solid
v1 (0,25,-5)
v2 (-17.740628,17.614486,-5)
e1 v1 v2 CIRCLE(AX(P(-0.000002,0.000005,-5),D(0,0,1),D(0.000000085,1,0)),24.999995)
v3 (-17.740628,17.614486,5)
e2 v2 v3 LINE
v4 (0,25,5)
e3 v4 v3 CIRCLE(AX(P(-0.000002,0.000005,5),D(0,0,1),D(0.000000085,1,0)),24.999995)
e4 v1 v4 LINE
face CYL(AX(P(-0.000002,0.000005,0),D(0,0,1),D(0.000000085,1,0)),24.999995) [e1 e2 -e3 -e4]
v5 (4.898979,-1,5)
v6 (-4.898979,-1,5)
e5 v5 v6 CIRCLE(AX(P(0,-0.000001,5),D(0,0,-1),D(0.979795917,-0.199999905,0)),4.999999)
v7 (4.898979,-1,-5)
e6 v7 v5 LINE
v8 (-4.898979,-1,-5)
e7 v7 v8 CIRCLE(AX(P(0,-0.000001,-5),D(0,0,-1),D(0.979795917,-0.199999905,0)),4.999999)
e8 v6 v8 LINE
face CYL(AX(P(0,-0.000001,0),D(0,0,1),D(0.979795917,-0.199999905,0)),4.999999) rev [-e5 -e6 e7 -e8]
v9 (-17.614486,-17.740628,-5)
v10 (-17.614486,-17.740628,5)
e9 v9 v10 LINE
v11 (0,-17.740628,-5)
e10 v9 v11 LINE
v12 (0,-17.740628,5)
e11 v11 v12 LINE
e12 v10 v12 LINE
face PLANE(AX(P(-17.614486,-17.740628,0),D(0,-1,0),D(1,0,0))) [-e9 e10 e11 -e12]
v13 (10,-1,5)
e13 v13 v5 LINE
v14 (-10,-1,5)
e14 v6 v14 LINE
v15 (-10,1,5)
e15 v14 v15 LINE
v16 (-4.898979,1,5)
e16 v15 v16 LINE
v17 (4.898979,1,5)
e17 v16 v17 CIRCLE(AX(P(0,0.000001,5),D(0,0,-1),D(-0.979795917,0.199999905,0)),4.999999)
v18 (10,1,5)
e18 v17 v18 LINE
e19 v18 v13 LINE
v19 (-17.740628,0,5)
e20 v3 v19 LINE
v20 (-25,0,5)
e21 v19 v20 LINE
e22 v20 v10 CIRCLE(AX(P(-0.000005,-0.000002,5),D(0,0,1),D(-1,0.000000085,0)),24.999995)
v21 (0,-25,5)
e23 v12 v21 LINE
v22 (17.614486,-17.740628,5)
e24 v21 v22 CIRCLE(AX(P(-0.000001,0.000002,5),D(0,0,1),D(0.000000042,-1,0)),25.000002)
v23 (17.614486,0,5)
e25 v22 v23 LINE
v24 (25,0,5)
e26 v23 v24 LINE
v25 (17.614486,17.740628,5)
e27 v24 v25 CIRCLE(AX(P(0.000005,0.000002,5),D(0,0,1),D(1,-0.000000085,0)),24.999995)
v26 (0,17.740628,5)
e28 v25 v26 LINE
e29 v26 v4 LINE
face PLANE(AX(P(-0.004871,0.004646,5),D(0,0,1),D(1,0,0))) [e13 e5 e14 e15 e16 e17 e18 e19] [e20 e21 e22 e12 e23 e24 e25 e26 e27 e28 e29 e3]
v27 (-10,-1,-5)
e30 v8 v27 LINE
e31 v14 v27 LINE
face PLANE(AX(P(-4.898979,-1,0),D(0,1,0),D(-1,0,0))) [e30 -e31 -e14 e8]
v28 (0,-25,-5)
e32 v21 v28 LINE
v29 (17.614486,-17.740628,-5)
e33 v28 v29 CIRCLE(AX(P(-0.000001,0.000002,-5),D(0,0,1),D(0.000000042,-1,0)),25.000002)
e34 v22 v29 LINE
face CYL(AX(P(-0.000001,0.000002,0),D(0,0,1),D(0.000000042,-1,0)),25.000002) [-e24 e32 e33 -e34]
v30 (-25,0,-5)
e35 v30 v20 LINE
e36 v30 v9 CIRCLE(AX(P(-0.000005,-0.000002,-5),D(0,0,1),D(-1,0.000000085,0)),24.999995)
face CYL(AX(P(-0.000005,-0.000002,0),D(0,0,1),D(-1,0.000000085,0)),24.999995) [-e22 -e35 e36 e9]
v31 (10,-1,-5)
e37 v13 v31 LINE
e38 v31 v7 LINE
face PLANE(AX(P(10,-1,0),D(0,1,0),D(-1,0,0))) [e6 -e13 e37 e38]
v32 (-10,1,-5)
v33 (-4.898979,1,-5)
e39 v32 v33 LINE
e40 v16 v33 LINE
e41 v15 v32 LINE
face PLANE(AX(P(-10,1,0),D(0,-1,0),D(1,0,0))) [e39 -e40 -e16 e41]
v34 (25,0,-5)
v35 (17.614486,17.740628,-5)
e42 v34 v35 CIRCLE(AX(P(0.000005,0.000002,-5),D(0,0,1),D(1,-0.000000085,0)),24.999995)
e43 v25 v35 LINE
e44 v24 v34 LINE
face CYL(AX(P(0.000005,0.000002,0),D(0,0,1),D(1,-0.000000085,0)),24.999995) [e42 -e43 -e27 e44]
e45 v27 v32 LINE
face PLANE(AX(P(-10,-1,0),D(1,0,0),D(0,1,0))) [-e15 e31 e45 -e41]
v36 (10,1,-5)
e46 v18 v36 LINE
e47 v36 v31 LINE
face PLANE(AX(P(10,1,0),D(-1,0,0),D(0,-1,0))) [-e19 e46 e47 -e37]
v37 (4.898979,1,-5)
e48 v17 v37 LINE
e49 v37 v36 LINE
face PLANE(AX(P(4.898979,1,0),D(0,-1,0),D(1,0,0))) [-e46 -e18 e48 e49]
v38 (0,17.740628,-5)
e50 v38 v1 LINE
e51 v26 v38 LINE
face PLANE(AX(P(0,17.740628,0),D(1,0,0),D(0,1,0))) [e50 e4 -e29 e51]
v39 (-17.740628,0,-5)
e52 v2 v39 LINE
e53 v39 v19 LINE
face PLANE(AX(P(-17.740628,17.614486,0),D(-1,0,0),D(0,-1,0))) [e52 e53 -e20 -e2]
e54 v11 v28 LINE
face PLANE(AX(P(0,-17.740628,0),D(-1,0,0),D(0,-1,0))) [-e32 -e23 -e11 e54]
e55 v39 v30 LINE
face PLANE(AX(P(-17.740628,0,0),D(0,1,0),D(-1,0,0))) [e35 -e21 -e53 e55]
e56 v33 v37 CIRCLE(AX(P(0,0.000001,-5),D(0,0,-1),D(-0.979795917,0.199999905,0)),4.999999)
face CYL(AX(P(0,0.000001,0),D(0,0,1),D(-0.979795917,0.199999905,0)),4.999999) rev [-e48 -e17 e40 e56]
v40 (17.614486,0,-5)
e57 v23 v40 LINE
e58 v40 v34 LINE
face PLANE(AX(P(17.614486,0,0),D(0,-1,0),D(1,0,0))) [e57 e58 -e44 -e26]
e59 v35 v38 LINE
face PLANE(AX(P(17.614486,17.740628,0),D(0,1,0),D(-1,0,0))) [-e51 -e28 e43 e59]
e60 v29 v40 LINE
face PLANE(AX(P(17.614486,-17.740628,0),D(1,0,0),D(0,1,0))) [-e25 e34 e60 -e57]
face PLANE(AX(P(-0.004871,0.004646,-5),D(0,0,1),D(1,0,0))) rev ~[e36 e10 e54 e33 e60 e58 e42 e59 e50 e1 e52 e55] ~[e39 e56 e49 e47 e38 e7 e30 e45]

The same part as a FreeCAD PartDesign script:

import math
import FreeCAD as App
import Part
import Sketcher

V = App.Vector
Q = App.Units.Quantity

doc = App.newDocument("Part")
body = doc.addObject("PartDesign::Body", "Body")

# Sketch on XY plane
sketch1 = doc.addObject("Sketcher::SketchObject", "Sketch")
body.addObject(sketch1)
sketch1.AttachmentSupport = (doc.XY_Plane, [""])
sketch1.MapMode = "FlatFace"
sketch1.addGeometry([
    Part.LineSegment(V(0, 17.7, 0), V(0, 25, 0)),  # 0
    Part.ArcOfCircle(Part.Circle(V(0, 0, 0), V(0, 0, 1), 25), math.radians(90), math.radians(135)),  # 1
    Part.LineSegment(V(-17.7, 17.6, 0), V(-17.7, 0, 0)),  # 2
    Part.LineSegment(V(-17.7, 0, 0), V(-25, 0, 0)),  # 3
    Part.ArcOfCircle(Part.Circle(V(0, 0, 0), V(0, 0, 1), 25), math.radians(180), math.radians(225)),  # 4
    Part.LineSegment(V(-17.6, -17.7, 0), V(0, -17.7, 0)),  # 5
    Part.LineSegment(V(0, -17.7, 0), V(0, -25, 0)),  # 6
    Part.ArcOfCircle(Part.Circle(V(0, 0, 0), V(0, 0, 1), 25), math.radians(-90), math.radians(-45)),  # 7
    Part.LineSegment(V(17.6, -17.7, 0), V(17.6, 0, 0)),  # 8
    Part.LineSegment(V(17.6, 0, 0), V(25, 0, 0)),  # 9
    Part.ArcOfCircle(Part.Circle(V(0, 0, 0), V(0, 0, 1), 25), math.radians(0), math.radians(45)),  # 10
    Part.LineSegment(V(17.6, 17.7, 0), V(0, 17.7, 0)),  # 11
    Part.LineSegment(V(10, -1, 0), V(4.9, -1, 0)),  # 12
    Part.ArcOfCircle(Part.Circle(V(0, 0, 0), V(0, 0, 1), 5), math.radians(-168), math.radians(-12)),  # 13
    Part.LineSegment(V(-4.9, -1, 0), V(-10, -1, 0)),  # 14
    Part.LineSegment(V(-10, -1, 0), V(-10, 1, 0)),  # 15
    Part.LineSegment(V(-10, 1, 0), V(-4.9, 1, 0)),  # 16
    Part.ArcOfCircle(Part.Circle(V(0, 0, 0), V(0, 0, 1), 5), math.radians(12), math.radians(168)),  # 17
    Part.LineSegment(V(4.9, 1, 0), V(10, 1, 0)),  # 18
    Part.LineSegment(V(10, 1, 0), V(10, -1, 0)),  # 19
], False)
sketch1.addConstraint([
    Sketcher.Constraint("Coincident", 0, 2, 1, 1),
    Sketcher.Constraint("Coincident", 1, 2, 2, 1),
    Sketcher.Constraint("Coincident", 2, 2, 3, 1),
    Sketcher.Constraint("Coincident", 3, 2, 4, 1),
    Sketcher.Constraint("Coincident", 4, 2, 5, 1),
    Sketcher.Constraint("Coincident", 5, 2, 6, 1),
    Sketcher.Constraint("Coincident", 6, 2, 7, 1),
    Sketcher.Constraint("Coincident", 7, 2, 8, 1),
    Sketcher.Constraint("Coincident", 8, 2, 9, 1),
    Sketcher.Constraint("Coincident", 9, 2, 10, 1),
    Sketcher.Constraint("Coincident", 10, 2, 11, 1),
    Sketcher.Constraint("Coincident", 11, 2, 0, 1),
    Sketcher.Constraint("Coincident", 12, 2, 13, 2),
    Sketcher.Constraint("Coincident", 13, 1, 14, 1),
    Sketcher.Constraint("Coincident", 14, 2, 15, 1),
    Sketcher.Constraint("Coincident", 15, 2, 16, 1),
    Sketcher.Constraint("Coincident", 16, 2, 17, 2),
    Sketcher.Constraint("Coincident", 17, 1, 18, 1),
    Sketcher.Constraint("Coincident", 18, 2, 19, 1),
    Sketcher.Constraint("Coincident", 19, 2, 12, 1),
    Sketcher.Constraint("Vertical", 0),
    Sketcher.Constraint("Vertical", 2),
    Sketcher.Constraint("Horizontal", 3),
    Sketcher.Constraint("Horizontal", 5),
    Sketcher.Constraint("Vertical", 6),
    Sketcher.Constraint("Vertical", 8),
    Sketcher.Constraint("Horizontal", 9),
    Sketcher.Constraint("Horizontal", 11),
    Sketcher.Constraint("Horizontal", 12),
    Sketcher.Constraint("Horizontal", 14),
    Sketcher.Constraint("Vertical", 15),
    Sketcher.Constraint("Horizontal", 16),
    Sketcher.Constraint("Horizontal", 18),
    Sketcher.Constraint("Vertical", 19),
    Sketcher.Constraint("Coincident", 1, 3, -1, 1),
    Sketcher.Constraint("Coincident", 4, 3, -1, 1),
    Sketcher.Constraint("Coincident", 7, 3, -1, 1),
    Sketcher.Constraint("Coincident", 10, 3, -1, 1),
    Sketcher.Constraint("Coincident", 13, 3, -1, 1),
    Sketcher.Constraint("Coincident", 17, 3, -1, 1),
    Sketcher.Constraint("Equal", 1, 4),
    Sketcher.Constraint("Equal", 4, 10),
    Sketcher.Constraint("Equal", 13, 17),
    Sketcher.Constraint("Symmetric", 0, 2, 6, 2, -1, 1),
    Sketcher.Constraint("Symmetric", 14, 2, 18, 2, -1, 1),
    Sketcher.Constraint("Symmetric", 5, 2, 11, 2, -1),
    Sketcher.Constraint("PointOnObject", 2, 2, -1),
    Sketcher.Constraint("PointOnObject", 8, 2, -1),
    Sketcher.Constraint("Horizontal", 5, 2, 7, 2),
    Sketcher.Constraint("Horizontal", 12, 2, 13, 1),
    Sketcher.Constraint("Horizontal", 16, 2, 17, 1),
    Sketcher.Constraint("Equal", 3, 0),
    Sketcher.Constraint("Radius", 13, Q("4.999999 mm")),
    Sketcher.Constraint("DistanceY", 15, 1, 15, 2, Q("2 mm")),
    Sketcher.Constraint("DistanceY", -1, 1, 0, 2, Q("25 mm")),
    Sketcher.Constraint("DistanceX", 14, 2, -1, 1, Q("10 mm")),
    Sketcher.Constraint("DistanceX", 3, 2, 3, 1, Q("7.259372 mm")),
])
pad1 = doc.addObject("PartDesign::Pad", "Pad")
body.addObject(pad1)
pad1.Profile = sketch1
pad1.Length = 10
pad1.Midplane = True

doc.recompute()
